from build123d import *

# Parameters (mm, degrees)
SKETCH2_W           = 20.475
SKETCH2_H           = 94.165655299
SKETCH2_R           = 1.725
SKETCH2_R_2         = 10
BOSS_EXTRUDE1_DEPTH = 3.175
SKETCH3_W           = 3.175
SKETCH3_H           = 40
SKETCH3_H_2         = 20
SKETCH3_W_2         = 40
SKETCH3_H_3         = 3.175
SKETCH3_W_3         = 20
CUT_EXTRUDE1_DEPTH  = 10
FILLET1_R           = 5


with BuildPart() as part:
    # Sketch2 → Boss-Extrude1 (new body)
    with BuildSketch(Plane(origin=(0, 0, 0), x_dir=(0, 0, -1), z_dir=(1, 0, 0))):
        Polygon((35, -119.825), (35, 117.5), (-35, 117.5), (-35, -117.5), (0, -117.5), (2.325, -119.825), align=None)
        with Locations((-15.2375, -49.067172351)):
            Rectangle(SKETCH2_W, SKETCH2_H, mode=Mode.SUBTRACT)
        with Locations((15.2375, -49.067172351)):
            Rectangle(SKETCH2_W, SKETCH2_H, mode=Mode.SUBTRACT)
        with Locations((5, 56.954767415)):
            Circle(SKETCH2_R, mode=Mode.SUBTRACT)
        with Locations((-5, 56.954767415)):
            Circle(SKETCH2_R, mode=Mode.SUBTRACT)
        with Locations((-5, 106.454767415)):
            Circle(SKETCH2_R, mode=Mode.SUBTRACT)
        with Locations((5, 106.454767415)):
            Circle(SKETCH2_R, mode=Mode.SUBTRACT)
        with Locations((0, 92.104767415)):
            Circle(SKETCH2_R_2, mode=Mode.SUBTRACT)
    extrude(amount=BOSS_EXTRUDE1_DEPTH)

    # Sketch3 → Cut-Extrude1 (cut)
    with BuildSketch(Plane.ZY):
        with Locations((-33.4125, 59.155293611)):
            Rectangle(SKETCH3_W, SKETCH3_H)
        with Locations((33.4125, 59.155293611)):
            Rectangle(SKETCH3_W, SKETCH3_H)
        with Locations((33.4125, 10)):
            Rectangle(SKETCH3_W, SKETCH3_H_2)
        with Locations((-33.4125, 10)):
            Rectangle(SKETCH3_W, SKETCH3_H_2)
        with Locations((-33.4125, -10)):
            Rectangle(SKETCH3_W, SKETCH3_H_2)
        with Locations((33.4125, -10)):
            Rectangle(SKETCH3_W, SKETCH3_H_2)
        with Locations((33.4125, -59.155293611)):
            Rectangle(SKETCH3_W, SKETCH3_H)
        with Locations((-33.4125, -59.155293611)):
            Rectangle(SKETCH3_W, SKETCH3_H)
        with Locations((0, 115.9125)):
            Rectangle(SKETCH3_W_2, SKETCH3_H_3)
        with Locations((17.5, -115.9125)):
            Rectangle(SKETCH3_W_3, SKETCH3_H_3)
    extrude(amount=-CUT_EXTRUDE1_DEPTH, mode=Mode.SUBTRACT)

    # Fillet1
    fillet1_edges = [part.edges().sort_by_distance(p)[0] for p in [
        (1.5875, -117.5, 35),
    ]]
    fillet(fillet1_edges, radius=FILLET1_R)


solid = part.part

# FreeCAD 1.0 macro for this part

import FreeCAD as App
import Part
import Sketcher
Q = App.Units.Quantity


def edges_at(feature, points):
    """Names of the edges that pass closest to the given points."""
    edges = feature.Shape.Edges
    near = lambda p: min(range(len(edges)), key=lambda i: edges[i].distToShape(Part.Vertex(*p))[0])
    return sorted({f"Edge{near(p) + 1}" for p in points})

doc = App.newDocument("Part")
params = doc.addObject("Spreadsheet::Sheet", "Params")
for row, (alias, value) in enumerate([
    ("sketch1_diameter", "20 mm"),
    ("sketch1_diameter2", "3.45 mm"),
    ("sketch1_width", "235 mm"),
    ("sketch1_height", "70 mm"),
    ("pad1_length", "3.175 mm"),
    ("sketch2_width", "40 mm"),
    ("sketch2_height", "20 mm"),
    ("pocket1_length", "10 mm"),
    ("fillet_radius", "5 mm"),
], start=1):
    params.set(f"A{row}", alias)
    params.set(f"B{row}", "=" + value)
    params.setAlias(f"B{row}", alias)

body = doc.addObject("PartDesign::Body", "Body")

sketch1 = body.newObject("Sketcher::SketchObject", "Sketch")
sketch1.AttachmentSupport = (doc.getObject("YZ_Plane"), [""])
sketch1.MapMode = "FlatFace"
sketch1.addGeometry([
    Part.LineSegment(App.Vector(-119.8, -35, 0), App.Vector(117.5, -35, 0)),
    Part.LineSegment(App.Vector(117.5, -35, 0), App.Vector(117.5, 35, 0)),
    Part.LineSegment(App.Vector(117.5, 35, 0), App.Vector(-117.5, 35, 0)),
    Part.LineSegment(App.Vector(-117.5, 35, 0), App.Vector(-117.5, 0, 0)),
    Part.LineSegment(App.Vector(-117.5, 0, 0), App.Vector(-119.8, -2.3, 0)),
    Part.LineSegment(App.Vector(-119.8, -2.3, 0), App.Vector(-119.8, -35, 0)),
    Part.LineSegment(App.Vector(-96.2, 5, 0), App.Vector(-96.2, 25.5, 0)),
    Part.LineSegment(App.Vector(-96.2, 25.5, 0), App.Vector(-2, 25.5, 0)),
    Part.LineSegment(App.Vector(-2, 25.5, 0), App.Vector(-2, 5, 0)),
    Part.LineSegment(App.Vector(-2, 5, 0), App.Vector(-96.2, 5, 0)),
    Part.LineSegment(App.Vector(-96.2, -25.5, 0), App.Vector(-96.2, -5, 0)),
    Part.LineSegment(App.Vector(-96.2, -5, 0), App.Vector(-2, -5, 0)),
    Part.LineSegment(App.Vector(-2, -5, 0), App.Vector(-2, -25.5, 0)),
    Part.LineSegment(App.Vector(-2, -25.5, 0), App.Vector(-96.2, -25.5, 0)),
    Part.Circle(App.Vector(57, 5, 0), App.Vector(0, 0, 1), 1.7),
    Part.Circle(App.Vector(92.1, 0, 0), App.Vector(0, 0, 1), 10),
    Part.Circle(App.Vector(106.5, 5, 0), App.Vector(0, 0, 1), 1.7),
    Part.Circle(App.Vector(57, -5, 0), App.Vector(0, 0, 1), 1.7),
    Part.Circle(App.Vector(106.5, -5, 0), App.Vector(0, 0, 1), 1.7),
], False)
sketch1.addConstraint([
    Sketcher.Constraint("Coincident", 0, 2, 1, 1),
    Sketcher.Constraint("Coincident", 1, 2, 2, 1),
    Sketcher.Constraint("Coincident", 2, 2, 3, 1),
    Sketcher.Constraint("Coincident", 3, 2, 4, 1),
    Sketcher.Constraint("Coincident", 4, 2, 5, 1),
    Sketcher.Constraint("Coincident", 5, 2, 0, 1),
    Sketcher.Constraint("Coincident", 6, 2, 7, 1),
    Sketcher.Constraint("Coincident", 7, 2, 8, 1),
    Sketcher.Constraint("Coincident", 8, 2, 9, 1),
    Sketcher.Constraint("Coincident", 9, 2, 6, 1),
    Sketcher.Constraint("Coincident", 10, 2, 11, 1),
    Sketcher.Constraint("Coincident", 11, 2, 12, 1),
    Sketcher.Constraint("Coincident", 12, 2, 13, 1),
    Sketcher.Constraint("Coincident", 13, 2, 10, 1),
    Sketcher.Constraint("Horizontal", 0),
    Sketcher.Constraint("Vertical", 1),
    Sketcher.Constraint("Horizontal", 2),
    Sketcher.Constraint("Vertical", 3),
    Sketcher.Constraint("Vertical", 5),
    Sketcher.Constraint("Vertical", 6),
    Sketcher.Constraint("Horizontal", 7),
    Sketcher.Constraint("Vertical", 8),
    Sketcher.Constraint("Horizontal", 9),
    Sketcher.Constraint("Vertical", 10),
    Sketcher.Constraint("Horizontal", 11),
    Sketcher.Constraint("Vertical", 12),
    Sketcher.Constraint("Horizontal", 13),
    Sketcher.Constraint("Equal", 14, 16),
    Sketcher.Constraint("Equal", 16, 17),
    Sketcher.Constraint("Equal", 17, 18),
    Sketcher.Constraint("Symmetric", 0, 2, 2, 2, -1, 1),
    Sketcher.Constraint("Symmetric", 14, 3, 17, 3, -1),
    Sketcher.Constraint("Symmetric", 16, 3, 18, 3, -1),
    Sketcher.Constraint("Symmetric", 9, 2, 10, 2, -1),
    Sketcher.Constraint("Symmetric", 7, 2, 12, 2, -1),
    Sketcher.Constraint("PointOnObject", 15, 3, -1),
    Sketcher.Constraint("PointOnObject", 3, 2, -1),
    Sketcher.Constraint("Horizontal", 14, 3, 16, 3),
    Sketcher.Constraint("Horizontal", 16, 3, 8, 2),
    Sketcher.Constraint("Diameter", 15, 20.0),
    Sketcher.Constraint("Diameter", 14, 3.45),
    Sketcher.Constraint("DistanceX", 2, 2, 2, 1, 235.0),
    Sketcher.Constraint("DistanceY", 1, 1, 1, 2, 70.0),
    Sketcher.Constraint("Angle", 4, Q("-135 deg")),
    Sketcher.Constraint("DistanceY", -1, 1, 14, 3, 5.0),
    Sketcher.Constraint("DistanceX", 14, 3, 16, 3, 49.5),
    Sketcher.Constraint("DistanceY", 4, 2, 6, 2, 27.8),
    Sketcher.Constraint("DistanceX", 0, 1, 0, 2, 237.325),
    Sketcher.Constraint("DistanceX", 6, 2, -1, 1, 96.15),
    Sketcher.Constraint("DistanceX", 14, 3, 15, 3, 35.15),
    Sketcher.Constraint("DistanceX", 7, 1, 7, 2, 94.165655),
    Sketcher.Constraint("DistanceX", -1, 1, 14, 3, 56.954767),
])
sketch1.setExpression("Constraints[39]", "Params.sketch1_diameter")
sketch1.setExpression("Constraints[40]", "Params.sketch1_diameter2")
sketch1.setExpression("Constraints[41]", "Params.sketch1_width")
sketch1.setExpression("Constraints[42]", "Params.sketch1_height")
pad1 = body.newObject("PartDesign::Pad", "Pad")
pad1.Profile = sketch1
pad1.setExpression("Length", "Params.pad1_length")

sketch2 = body.newObject("Sketcher::SketchObject", "Sketch001")
sketch2.AttachmentSupport = (doc.getObject("YZ_Plane"), [""])
sketch2.MapMode = "FlatFace"
sketch2.addGeometry([
    Part.LineSegment(App.Vector(79.2, -35, 0), App.Vector(39.2, -35, 0)),
    Part.LineSegment(App.Vector(39.2, -35, 0), App.Vector(39.2, -31.8, 0)),
    Part.LineSegment(App.Vector(39.2, -31.8, 0), App.Vector(79.2, -31.8, 0)),
    Part.LineSegment(App.Vector(79.2, -31.8, 0), App.Vector(79.2, -35, 0)),
    Part.LineSegment(App.Vector(79.2, 31.8, 0), App.Vector(39.2, 31.8, 0)),
    Part.LineSegment(App.Vector(39.2, 31.8, 0), App.Vector(39.2, 35, 0)),
    Part.LineSegment(App.Vector(39.2, 35, 0), App.Vector(79.2, 35, 0)),
    Part.LineSegment(App.Vector(79.2, 35, 0), App.Vector(79.2, 31.8, 0)),
    Part.LineSegment(App.Vector(20, 31.8, 0), App.Vector(-20, 31.8, 0)),
    Part.LineSegment(App.Vector(-20, 31.8, 0), App.Vector(-20, 35, 0)),
    Part.LineSegment(App.Vector(-20, 35, 0), App.Vector(20, 35, 0)),
    Part.LineSegment(App.Vector(20, 35, 0), App.Vector(20, 31.8, 0)),
    Part.LineSegment(App.Vector(20, -35, 0), App.Vector(-20, -35, 0)),
    Part.LineSegment(App.Vector(-20, -35, 0), App.Vector(-20, -31.8, 0)),
    Part.LineSegment(App.Vector(-20, -31.8, 0), App.Vector(20, -31.8, 0)),
    Part.LineSegment(App.Vector(20, -31.8, 0), App.Vector(20, -35, 0)),
    Part.LineSegment(App.Vector(-39.2, 31.8, 0), App.Vector(-79.2, 31.8, 0)),
    Part.LineSegment(App.Vector(-79.2, 31.8, 0), App.Vector(-79.2, 35, 0)),
    Part.LineSegment(App.Vector(-79.2, 35, 0), App.Vector(-39.2, 35, 0)),
    Part.LineSegment(App.Vector(-39.2, 35, 0), App.Vector(-39.2, 31.8, 0)),
    Part.LineSegment(App.Vector(-39.2, -35, 0), App.Vector(-79.2, -35, 0)),
    Part.LineSegment(App.Vector(-79.2, -35, 0), App.Vector(-79.2, -31.8, 0)),
    Part.LineSegment(App.Vector(-79.2, -31.8, 0), App.Vector(-39.2, -31.8, 0)),
    Part.LineSegment(App.Vector(-39.2, -31.8, 0), App.Vector(-39.2, -35, 0)),
    Part.LineSegment(App.Vector(117.5, -20, 0), App.Vector(114.3, -20, 0)),
    Part.LineSegment(App.Vector(114.3, -20, 0), App.Vector(114.3, 20, 0)),
    Part.LineSegment(App.Vector(114.3, 20, 0), App.Vector(117.5, 20, 0)),
    Part.LineSegment(App.Vector(117.5, 20, 0), App.Vector(117.5, -20, 0)),
    Part.LineSegment(App.Vector(-114.3, 7.5, 0), App.Vector(-117.5, 7.5, 0)),
    Part.LineSegment(App.Vector(-117.5, 7.5, 0), App.Vector(-117.5, 27.5, 0)),
    Part.LineSegment(App.Vector(-117.5, 27.5, 0), App.Vector(-114.3, 27.5, 0)),
    Part.LineSegment(App.Vector(-114.3, 27.5, 0), App.Vector(-114.3, 7.5, 0)),
], False)
sketch2.addConstraint([
    Sketcher.Constraint("Coincident", 0, 2, 1, 1),
    Sketcher.Constraint("Coincident", 1, 2, 2, 1),
    Sketcher.Constraint("Coincident", 2, 2, 3, 1),
    Sketcher.Constraint("Coincident", 3, 2, 0, 1),
    Sketcher.Constraint("Coincident", 4, 2, 5, 1),
    Sketcher.Constraint("Coincident", 5, 2, 6, 1),
    Sketcher.Constraint("Coincident", 6, 2, 7, 1),
    Sketcher.Constraint("Coincident", 7, 2, 4, 1),
    Sketcher.Constraint("Coincident", 8, 2, 9, 1),
    Sketcher.Constraint("Coincident", 9, 2, 10, 1),
    Sketcher.Constraint("Coincident", 10, 2, 11, 1),
    Sketcher.Constraint("Coincident", 11, 2, 8, 1),
    Sketcher.Constraint("Coincident", 12, 2, 13, 1),
    Sketcher.Constraint("Coincident", 13, 2, 14, 1),
    Sketcher.Constraint("Coincident", 14, 2, 15, 1),
    Sketcher.Constraint("Coincident", 15, 2, 12, 1),
    Sketcher.Constraint("Coincident", 16, 2, 17, 1),
    Sketcher.Constraint("Coincident", 17, 2, 18, 1),
    Sketcher.Constraint("Coincident", 18, 2, 19, 1),
    Sketcher.Constraint("Coincident", 19, 2, 16, 1),
    Sketcher.Constraint("Coincident", 20, 2, 21, 1),
    Sketcher.Constraint("Coincident", 21, 2, 22, 1),
    Sketcher.Constraint("Coincident", 22, 2, 23, 1),
    Sketcher.Constraint("Coincident", 23, 2, 20, 1),
    Sketcher.Constraint("Coincident", 24, 2, 25, 1),
    Sketcher.Constraint("Coincident", 25, 2, 26, 1),
    Sketcher.Constraint("Coincident", 26, 2, 27, 1),
    Sketcher.Constraint("Coincident", 27, 2, 24, 1),
    Sketcher.Constraint("Coincident", 28, 2, 29, 1),
    Sketcher.Constraint("Coincident", 29, 2, 30, 1),
    Sketcher.Constraint("Coincident", 30, 2, 31, 1),
    Sketcher.Constraint("Coincident", 31, 2, 28, 1),
    Sketcher.Constraint("Horizontal", 0),
    Sketcher.Constraint("Vertical", 1),
    Sketcher.Constraint("Horizontal", 2),
    Sketcher.Constraint("Vertical", 3),
    Sketcher.Constraint("Horizontal", 4),
    Sketcher.Constraint("Vertical", 5),
    Sketcher.Constraint("Horizontal", 6),
    Sketcher.Constraint("Vertical", 7),
    Sketcher.Constraint("Horizontal", 8),
    Sketcher.Constraint("Vertical", 9),
    Sketcher.Constraint("Horizontal", 10),
    Sketcher.Constraint("Vertical", 11),
    Sketcher.Constraint("Horizontal", 12),
    Sketcher.Constraint("Vertical", 13),
    Sketcher.Constraint("Horizontal", 14),
    Sketcher.Constraint("Vertical", 15),
    Sketcher.Constraint("Horizontal", 16),
    Sketcher.Constraint("Vertical", 17),
    Sketcher.Constraint("Horizontal", 18),
    Sketcher.Constraint("Vertical", 19),
    Sketcher.Constraint("Horizontal", 20),
    Sketcher.Constraint("Vertical", 21),
    Sketcher.Constraint("Horizontal", 22),
    Sketcher.Constraint("Vertical", 23),
    Sketcher.Constraint("Horizontal", 24),
    Sketcher.Constraint("Vertical", 25),
    Sketcher.Constraint("Horizontal", 26),
    Sketcher.Constraint("Vertical", 27),
    Sketcher.Constraint("Horizontal", 28),
    Sketcher.Constraint("Vertical", 29),
    Sketcher.Constraint("Horizontal", 30),
    Sketcher.Constraint("Vertical", 31),
    Sketcher.Constraint("Symmetric", 10, 2, 12, 2, -1, 1),
    Sketcher.Constraint("Symmetric", 8, 2, 14, 2, -1, 1),
    Sketcher.Constraint("Symmetric", 2, 2, 16, 2, -1, 1),
    Sketcher.Constraint("Symmetric", 0, 2, 18, 2, -1, 1),
    Sketcher.Constraint("Symmetric", 6, 2, 20, 2, -1, 1),
    Sketcher.Constraint("Symmetric", 4, 2, 22, 2, -1, 1),
    Sketcher.Constraint("Symmetric", 7, 2, 16, 2, -2),
    Sketcher.Constraint("Symmetric", 5, 2, 18, 2, -2),
    Sketcher.Constraint("Horizontal", 7, 2, 8, 2),
    Sketcher.Constraint("Horizontal", 6, 2, 9, 2),
    Sketcher.Constraint("Vertical", 9, 2, 12, 2),
    Sketcher.Constraint("Equal", 6, 8),
    Sketcher.Constraint("Equal", 26, 28),
    Sketcher.Constraint("Equal", 30, 1),
    Sketcher.Constraint("Equal", 22, 25),
    Sketcher.Constraint("DistanceX", 0, 2, 0, 1, 40.0),
    Sketcher.Constraint("DistanceY", 29, 1, 29, 2, 20.0),
    Sketcher.Constraint("DistanceY", 0, 2, -1, 1, 35.0),
    Sketcher.Constraint("DistanceY", 24, 2, -1, 1, 20.0),
    Sketcher.Constraint("DistanceX", -1, 1, 26, 2, 117.5),
    Sketcher.Constraint("DistanceX", 28, 2, -1, 1, 117.5),
    Sketcher.Constraint("DistanceY", -1, 1, 28, 2, 7.5),
    Sketcher.Constraint("DistanceX", 24, 2, 24, 1, 3.175),
    Sketcher.Constraint("DistanceX", -1, 1, 0, 2, 39.155294),
])
sketch2.setExpression("Constraints[79]", "Params.sketch2_width")
sketch2.setExpression("Constraints[80]", "Params.sketch2_height")
pocket1 = body.newObject("PartDesign::Pocket", "Pocket")
pocket1.Profile = sketch2
pocket1.setExpression("Length", "Params.pocket1_length")
pocket1.Reversed = True
doc.recompute()

fillet = body.newObject("PartDesign::Fillet", "Fillet")
fillet.Base = (pocket1, edges_at(pocket1, [(1.587, -117.5, 35)]))
fillet.setExpression("Radius", "Params.fillet_radius")

doc.recompute()
